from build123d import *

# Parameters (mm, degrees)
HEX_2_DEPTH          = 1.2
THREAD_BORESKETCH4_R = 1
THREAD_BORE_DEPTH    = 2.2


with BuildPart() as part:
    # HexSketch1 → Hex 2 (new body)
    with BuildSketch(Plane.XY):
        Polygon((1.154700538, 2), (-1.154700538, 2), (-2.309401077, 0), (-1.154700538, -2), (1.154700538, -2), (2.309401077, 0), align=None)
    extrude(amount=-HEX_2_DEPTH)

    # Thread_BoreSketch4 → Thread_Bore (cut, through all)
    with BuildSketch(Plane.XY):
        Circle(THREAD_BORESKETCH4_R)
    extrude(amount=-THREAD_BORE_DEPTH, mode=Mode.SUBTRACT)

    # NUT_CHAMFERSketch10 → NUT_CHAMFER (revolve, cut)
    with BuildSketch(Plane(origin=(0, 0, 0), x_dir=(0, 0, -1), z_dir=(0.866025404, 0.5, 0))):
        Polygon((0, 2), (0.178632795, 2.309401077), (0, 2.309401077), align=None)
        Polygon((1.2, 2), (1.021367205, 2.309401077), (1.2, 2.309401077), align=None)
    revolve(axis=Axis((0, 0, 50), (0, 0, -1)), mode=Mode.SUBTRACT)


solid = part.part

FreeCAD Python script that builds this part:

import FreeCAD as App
import Part
import Sketcher
from FreeCAD import Vector
Q = App.Units.Quantity

doc = App.newDocument("Part")
body = doc.addObject("PartDesign::Body", "Body")

# Sketch on XY plane
sketch1 = body.newObject("Sketcher::SketchObject", "Sketch")
sketch1.AttachmentSupport = (doc.getObject("XY_Plane"), [""])
sketch1.MapMode = "FlatFace"
sketch1.addGeometry([
    Part.LineSegment(Vector(1.2, 2, 0), Vector(-1.2, 2, 0)),  # 0
    Part.LineSegment(Vector(-1.2, 2, 0), Vector(-2.3, 0, 0)),  # 1
    Part.LineSegment(Vector(-2.3, 0, 0), Vector(-1.2, -2, 0)),  # 2
    Part.LineSegment(Vector(-1.2, -2, 0), Vector(1.2, -2, 0)),  # 3
    Part.LineSegment(Vector(1.2, -2, 0), Vector(2.3, 0, 0)),  # 4
    Part.LineSegment(Vector(2.3, 0, 0), Vector(1.2, 2, 0)),  # 5
], False)
sketch1.addConstraint([
    Sketcher.Constraint("Coincident", 0, 2, 1, 1),
    Sketcher.Constraint("Coincident", 1, 2, 2, 1),
    Sketcher.Constraint("Coincident", 2, 2, 3, 1),
    Sketcher.Constraint("Coincident", 3, 2, 4, 1),
    Sketcher.Constraint("Coincident", 4, 2, 5, 1),
    Sketcher.Constraint("Coincident", 5, 2, 0, 1),
    Sketcher.Constraint("Horizontal", 0),
    Sketcher.Constraint("Horizontal", 3),
    Sketcher.Constraint("Symmetric", 0, 2, 3, 2, -1, 1),
    Sketcher.Constraint("Symmetric", 1, 2, 4, 2, -1, 1),
    Sketcher.Constraint("PointOnObject", 1, 2, -1),
    Sketcher.Constraint("Parallel", 2, 5),
    Sketcher.Constraint("Vertical", 0, 2, 2, 2),
    Sketcher.Constraint("Angle", 1, Q("-120 deg")),
    Sketcher.Constraint("DistanceY", -1, 1, 0, 2, Q("2 mm")),
    Sketcher.Constraint("DistanceX", 0, 2, 0, 1, Q("2.309401 mm")),
])
pad1 = body.newObject("PartDesign::Pad", "Pad")
pad1.Profile = sketch1
pad1.Length = 1.2
pad1.Reversed = True

# Sketch on XY plane
sketch2 = body.newObject("Sketcher::SketchObject", "Sketch001")
sketch2.AttachmentSupport = (doc.getObject("XY_Plane"), [""])
sketch2.MapMode = "FlatFace"
sketch2.addGeometry(Part.Circle(Vector(0, 0, 0), Vector(0, 0, 1), 1), False)
sketch2.addConstraint([
    Sketcher.Constraint("Coincident", 0, 3, -1, 1),
    Sketcher.Constraint("Diameter", 0, Q("2 mm")),
])
pocket1 = body.newObject("PartDesign::Pocket", "Pocket")
pocket1.Profile = sketch2
pocket1.Type = "ThroughAll"

# Sketch on an angled plane
sketch3 = body.newObject("Sketcher::SketchObject", "Sketch002")
sketch3.Placement = App.Placement(Vector(0, 0, 0), App.Rotation(Vector(0, 0, -1), Vector(-0.5, 0.866025404, 0), Vector(0.866025404, 0.5, 0), "ZXY"))
sketch3.addGeometry([
    Part.LineSegment(Vector(0, 2, 0), Vector(0.18, 2.31, 0)),  # 0
    Part.LineSegment(Vector(0.18, 2.31, 0), Vector(0, 2.31, 0)),  # 1
    Part.LineSegment(Vector(0, 2.31, 0), Vector(0, 2, 0)),  # 2
    Part.LineSegment(Vector(1.02, 2.31, 0), Vector(1.2, 2, 0)),  # 3
    Part.LineSegment(Vector(1.2, 2, 0), Vector(1.2, 2.31, 0)),  # 4
    Part.LineSegment(Vector(1.2, 2.31, 0), Vector(1.02, 2.31, 0)),  # 5
], False)
sketch3.addConstraint([
    Sketcher.Constraint("Coincident", 0, 2, 1, 1),
    Sketcher.Constraint("Coincident", 1, 2, 2, 1),
    Sketcher.Constraint("Coincident", 2, 2, 0, 1),
    Sketcher.Constraint("Coincident", 3, 2, 4, 1),
    Sketcher.Constraint("Coincident", 4, 2, 5, 1),
    Sketcher.Constraint("Coincident", 5, 2, 3, 1),
    Sketcher.Constraint("Horizontal", 1),
    Sketcher.Constraint("Vertical", 2),
    Sketcher.Constraint("Vertical", 4),
    Sketcher.Constraint("Horizontal", 5),
    Sketcher.Constraint("PointOnObject", 1, 2, -2),
    Sketcher.Constraint("Horizontal", 2, 2, 3, 2),
    Sketcher.Constraint("Horizontal", 1, 2, 4, 2),
    Sketcher.Constraint("Equal", 1, 5),
    Sketcher.Constraint("Angle", 0, Q("60 deg")),
    Sketcher.Constraint("DistanceY", -1, 1, 2, 2, Q("2 mm")),
    Sketcher.Constraint("DistanceX", -1, 1, 3, 2, Q("1.2 mm")),
    Sketcher.Constraint("DistanceY", 2, 2, 2, 1, Q("0.309401 mm")),
])
groove = body.newObject("PartDesign::Groove", "Groove")
groove.Profile = sketch3
groove.ReferenceAxis = (sketch3, ["H_Axis"])
groove.Angle = 360

doc.recompute()
